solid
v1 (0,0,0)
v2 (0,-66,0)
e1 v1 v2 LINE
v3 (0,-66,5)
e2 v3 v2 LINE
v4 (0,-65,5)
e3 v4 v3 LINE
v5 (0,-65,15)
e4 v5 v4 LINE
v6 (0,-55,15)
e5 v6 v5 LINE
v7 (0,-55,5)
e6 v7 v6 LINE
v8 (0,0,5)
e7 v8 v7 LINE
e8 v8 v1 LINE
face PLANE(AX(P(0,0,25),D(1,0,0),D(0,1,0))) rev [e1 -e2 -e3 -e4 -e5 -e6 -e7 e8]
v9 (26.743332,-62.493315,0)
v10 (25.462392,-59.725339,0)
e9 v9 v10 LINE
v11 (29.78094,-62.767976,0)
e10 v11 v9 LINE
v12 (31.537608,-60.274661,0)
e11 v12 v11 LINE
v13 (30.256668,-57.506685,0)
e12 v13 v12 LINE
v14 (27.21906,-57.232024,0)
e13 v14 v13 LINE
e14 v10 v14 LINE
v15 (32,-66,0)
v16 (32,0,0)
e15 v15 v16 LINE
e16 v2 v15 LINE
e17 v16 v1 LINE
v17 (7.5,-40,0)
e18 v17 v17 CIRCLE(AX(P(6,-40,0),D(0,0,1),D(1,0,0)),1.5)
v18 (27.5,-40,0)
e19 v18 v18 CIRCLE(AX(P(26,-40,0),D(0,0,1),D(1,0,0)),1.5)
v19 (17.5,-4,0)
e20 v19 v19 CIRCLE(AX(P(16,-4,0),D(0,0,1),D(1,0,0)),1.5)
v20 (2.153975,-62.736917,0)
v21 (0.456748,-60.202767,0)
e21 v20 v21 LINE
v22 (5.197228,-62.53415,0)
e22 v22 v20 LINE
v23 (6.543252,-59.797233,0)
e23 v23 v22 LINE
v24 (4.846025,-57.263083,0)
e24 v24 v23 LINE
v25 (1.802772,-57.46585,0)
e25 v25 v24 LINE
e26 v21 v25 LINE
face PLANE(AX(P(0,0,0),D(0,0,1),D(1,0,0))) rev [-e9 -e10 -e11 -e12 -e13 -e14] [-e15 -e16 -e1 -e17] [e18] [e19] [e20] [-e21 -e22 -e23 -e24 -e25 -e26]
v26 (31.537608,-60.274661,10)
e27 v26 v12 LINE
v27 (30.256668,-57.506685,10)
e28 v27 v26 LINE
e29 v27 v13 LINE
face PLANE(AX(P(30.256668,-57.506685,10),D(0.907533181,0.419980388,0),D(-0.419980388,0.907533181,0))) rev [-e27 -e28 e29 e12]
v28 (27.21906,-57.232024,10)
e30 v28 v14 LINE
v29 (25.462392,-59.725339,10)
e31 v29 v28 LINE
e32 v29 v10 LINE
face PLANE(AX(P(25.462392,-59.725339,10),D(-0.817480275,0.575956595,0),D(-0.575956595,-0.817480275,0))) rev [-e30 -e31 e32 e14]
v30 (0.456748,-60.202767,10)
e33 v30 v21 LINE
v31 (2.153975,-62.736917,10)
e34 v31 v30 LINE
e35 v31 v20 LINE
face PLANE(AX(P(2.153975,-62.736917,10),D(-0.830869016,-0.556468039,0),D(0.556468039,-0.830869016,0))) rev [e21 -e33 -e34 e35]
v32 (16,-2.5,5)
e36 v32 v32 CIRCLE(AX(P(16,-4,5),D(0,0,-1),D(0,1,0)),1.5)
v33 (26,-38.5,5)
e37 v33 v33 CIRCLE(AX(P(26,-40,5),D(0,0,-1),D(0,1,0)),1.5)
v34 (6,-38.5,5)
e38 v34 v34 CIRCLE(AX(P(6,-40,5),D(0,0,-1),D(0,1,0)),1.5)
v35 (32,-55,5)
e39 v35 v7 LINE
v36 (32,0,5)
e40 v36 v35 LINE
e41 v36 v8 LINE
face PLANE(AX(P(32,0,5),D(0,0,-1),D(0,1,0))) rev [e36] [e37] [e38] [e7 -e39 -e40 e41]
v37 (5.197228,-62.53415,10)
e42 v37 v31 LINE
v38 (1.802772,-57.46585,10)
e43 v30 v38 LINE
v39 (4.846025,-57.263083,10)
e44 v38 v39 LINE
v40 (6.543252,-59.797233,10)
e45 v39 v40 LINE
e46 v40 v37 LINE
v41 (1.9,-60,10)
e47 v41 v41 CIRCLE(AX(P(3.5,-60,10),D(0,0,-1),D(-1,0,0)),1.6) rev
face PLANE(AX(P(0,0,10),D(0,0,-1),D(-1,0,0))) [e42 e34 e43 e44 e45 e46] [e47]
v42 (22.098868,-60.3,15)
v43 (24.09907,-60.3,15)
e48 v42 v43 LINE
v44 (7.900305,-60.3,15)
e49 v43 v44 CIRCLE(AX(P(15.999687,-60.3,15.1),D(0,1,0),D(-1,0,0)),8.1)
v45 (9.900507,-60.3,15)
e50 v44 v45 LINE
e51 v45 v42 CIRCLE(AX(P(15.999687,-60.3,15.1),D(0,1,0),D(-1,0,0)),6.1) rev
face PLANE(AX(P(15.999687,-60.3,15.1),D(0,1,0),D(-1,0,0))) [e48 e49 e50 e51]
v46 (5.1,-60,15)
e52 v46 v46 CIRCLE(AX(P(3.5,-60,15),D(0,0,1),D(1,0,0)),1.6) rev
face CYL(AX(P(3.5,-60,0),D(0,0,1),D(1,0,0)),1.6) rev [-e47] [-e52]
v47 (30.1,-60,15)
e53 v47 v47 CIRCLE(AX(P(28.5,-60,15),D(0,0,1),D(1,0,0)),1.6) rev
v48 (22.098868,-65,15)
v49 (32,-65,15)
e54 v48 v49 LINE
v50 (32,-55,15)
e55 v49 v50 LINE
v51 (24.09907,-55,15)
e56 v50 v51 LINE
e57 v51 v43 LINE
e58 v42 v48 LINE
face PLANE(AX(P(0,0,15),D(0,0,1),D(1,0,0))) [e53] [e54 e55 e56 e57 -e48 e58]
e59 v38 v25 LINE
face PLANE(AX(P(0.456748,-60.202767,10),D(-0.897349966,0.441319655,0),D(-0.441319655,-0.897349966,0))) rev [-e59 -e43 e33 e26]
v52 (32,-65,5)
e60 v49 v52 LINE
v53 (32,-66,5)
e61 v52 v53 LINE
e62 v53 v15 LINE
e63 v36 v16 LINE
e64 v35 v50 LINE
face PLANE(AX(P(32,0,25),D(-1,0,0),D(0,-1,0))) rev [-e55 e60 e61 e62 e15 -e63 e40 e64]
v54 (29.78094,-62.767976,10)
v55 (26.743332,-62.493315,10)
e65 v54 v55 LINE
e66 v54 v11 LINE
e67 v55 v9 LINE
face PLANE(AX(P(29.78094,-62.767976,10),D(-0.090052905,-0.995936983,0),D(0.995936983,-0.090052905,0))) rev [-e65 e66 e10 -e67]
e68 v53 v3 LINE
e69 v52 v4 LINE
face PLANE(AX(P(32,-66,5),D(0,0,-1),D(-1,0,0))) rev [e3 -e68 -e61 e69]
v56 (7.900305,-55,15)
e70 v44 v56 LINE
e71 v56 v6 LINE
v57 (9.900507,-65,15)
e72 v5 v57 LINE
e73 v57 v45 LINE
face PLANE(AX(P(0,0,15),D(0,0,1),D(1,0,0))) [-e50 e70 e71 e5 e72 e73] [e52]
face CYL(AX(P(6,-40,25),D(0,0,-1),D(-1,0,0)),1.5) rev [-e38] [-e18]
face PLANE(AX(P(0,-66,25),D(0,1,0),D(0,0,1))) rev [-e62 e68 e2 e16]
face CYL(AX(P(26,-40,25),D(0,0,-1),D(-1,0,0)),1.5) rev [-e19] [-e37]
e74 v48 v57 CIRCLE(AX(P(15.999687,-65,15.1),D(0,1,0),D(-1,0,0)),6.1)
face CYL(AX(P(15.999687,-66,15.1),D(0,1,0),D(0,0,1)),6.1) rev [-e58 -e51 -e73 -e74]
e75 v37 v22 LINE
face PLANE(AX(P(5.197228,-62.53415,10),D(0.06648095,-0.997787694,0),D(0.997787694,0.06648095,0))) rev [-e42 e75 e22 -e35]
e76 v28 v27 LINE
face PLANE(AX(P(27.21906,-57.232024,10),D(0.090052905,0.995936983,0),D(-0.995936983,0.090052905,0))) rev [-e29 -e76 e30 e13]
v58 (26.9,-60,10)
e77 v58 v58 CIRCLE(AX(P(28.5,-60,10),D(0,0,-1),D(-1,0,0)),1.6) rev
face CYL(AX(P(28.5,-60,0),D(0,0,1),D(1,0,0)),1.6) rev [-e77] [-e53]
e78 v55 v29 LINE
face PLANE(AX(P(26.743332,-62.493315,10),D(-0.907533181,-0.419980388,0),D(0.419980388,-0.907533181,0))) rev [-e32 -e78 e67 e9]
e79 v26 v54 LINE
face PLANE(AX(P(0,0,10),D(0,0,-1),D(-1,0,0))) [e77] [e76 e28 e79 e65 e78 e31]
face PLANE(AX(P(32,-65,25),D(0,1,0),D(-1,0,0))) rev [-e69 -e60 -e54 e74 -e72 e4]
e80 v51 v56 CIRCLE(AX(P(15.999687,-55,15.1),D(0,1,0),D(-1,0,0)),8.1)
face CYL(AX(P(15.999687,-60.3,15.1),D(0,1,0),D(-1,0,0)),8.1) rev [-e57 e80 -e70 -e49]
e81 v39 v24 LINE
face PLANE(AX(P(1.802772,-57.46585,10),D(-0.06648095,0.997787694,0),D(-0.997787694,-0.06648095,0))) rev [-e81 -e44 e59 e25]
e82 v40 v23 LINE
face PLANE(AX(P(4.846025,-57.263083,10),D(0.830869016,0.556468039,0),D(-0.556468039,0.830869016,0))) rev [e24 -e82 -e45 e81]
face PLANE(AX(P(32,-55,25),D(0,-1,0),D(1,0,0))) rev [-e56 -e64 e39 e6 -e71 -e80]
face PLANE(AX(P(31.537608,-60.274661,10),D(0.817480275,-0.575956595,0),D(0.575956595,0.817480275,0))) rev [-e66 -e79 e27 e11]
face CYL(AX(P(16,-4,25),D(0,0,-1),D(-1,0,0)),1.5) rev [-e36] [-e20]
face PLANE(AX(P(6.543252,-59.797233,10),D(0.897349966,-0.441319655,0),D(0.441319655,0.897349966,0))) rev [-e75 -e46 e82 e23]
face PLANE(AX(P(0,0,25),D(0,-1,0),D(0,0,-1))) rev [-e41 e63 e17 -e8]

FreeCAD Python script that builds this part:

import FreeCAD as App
import Part
import Sketcher
from FreeCAD import Vector

doc = App.newDocument("Part")
body = doc.addObject("PartDesign::Body", "Body")

# Sketch on XY plane
sketch1 = doc.addObject("Sketcher::SketchObject", "Sketch")
body.addObject(sketch1)
sketch1.AttachmentSupport = (doc.XY_Plane, [""])
sketch1.MapMode = "FlatFace"
sketch1.addGeometry([
    Part.LineSegment(Vector(0, 0, 0), Vector(0, -66, 0)),  # 0
    Part.LineSegment(Vector(0, -66, 0), Vector(32, -66, 0)),  # 1
    Part.LineSegment(Vector(32, -66, 0), Vector(32, 0, 0)),  # 2
    Part.LineSegment(Vector(32, 0, 0), Vector(0, 0, 0)),  # 3
    Part.Circle(Vector(6, -40, 0), Vector(0, 0, 1), 1.5),  # 4
    Part.Circle(Vector(26, -40, 0), Vector(0, 0, 1), 1.5),  # 5
    Part.Circle(Vector(16, -4, 0), Vector(0, 0, 1), 1.5),  # 6
], False)
sketch1.addConstraint([
    Sketcher.Constraint("Coincident", 0, 2, 1, 1),
    Sketcher.Constraint("Coincident", 1, 2, 2, 1),
    Sketcher.Constraint("Coincident", 2, 2, 3, 1),
    Sketcher.Constraint("Coincident", 3, 2, 0, 1),
    Sketcher.Constraint("Vertical", 0),
    Sketcher.Constraint("Horizontal", 1),
    Sketcher.Constraint("Vertical", 2),
    Sketcher.Constraint("Horizontal", 3),
    Sketcher.Constraint("Coincident", 3, 2, -1, 1),
    Sketcher.Constraint("Equal", 4, 5),
    Sketcher.Constraint("Equal", 5, 6),
    Sketcher.Constraint("Horizontal", 4, 3, 5, 3),
    Sketcher.Constraint("Diameter", 4, 3.0),
    Sketcher.Constraint("DistanceX", 1, 1, 1, 2, 32.0),
    Sketcher.Constraint("DistanceY", 0, 2, 0, 1, 66.0),
    Sketcher.Constraint("DistanceX", -1, 1, 4, 3, 6.0),
    Sketcher.Constraint("DistanceY", 4, 3, -1, 1, 40.0),
    Sketcher.Constraint("DistanceX", -1, 1, 5, 3, 26.0),
    Sketcher.Constraint("DistanceX", -1, 1, 6, 3, 16.0),
    Sketcher.Constraint("DistanceY", 6, 3, -1, 1, 4.0),
])
pad1 = doc.addObject("PartDesign::Pad", "Pad")
body.addObject(pad1)
pad1.Profile = sketch1
pad1.Length = 25

# Sketch on YZ plane
sketch2 = doc.addObject("Sketcher::SketchObject", "Sketch001")
body.addObject(sketch2)
sketch2.AttachmentSupport = (doc.YZ_Plane, [""])
sketch2.MapMode = "FlatFace"
sketch2.addGeometry([
    Part.LineSegment(Vector(0, 5, 0), Vector(-55, 5, 0)),  # 0
    Part.LineSegment(Vector(-55, 5, 0), Vector(-55, 25, 0)),  # 1
    Part.LineSegment(Vector(-55, 25, 0), Vector(0, 25, 0)),  # 2
    Part.LineSegment(Vector(0, 25, 0), Vector(0, 5, 0)),  # 3
    Part.LineSegment(Vector(-65, 5, 0), Vector(-66, 5, 0)),  # 4
    Part.LineSegment(Vector(-66, 5, 0), Vector(-66, 25, 0)),  # 5
    Part.LineSegment(Vector(-66, 25, 0), Vector(-65, 25, 0)),  # 6
    Part.LineSegment(Vector(-65, 25, 0), Vector(-65, 5, 0)),  # 7
], False)
sketch2.addConstraint([
    Sketcher.Constraint("Coincident", 0, 2, 1, 1),
    Sketcher.Constraint("Coincident", 1, 2, 2, 1),
    Sketcher.Constraint("Coincident", 2, 2, 3, 1),
    Sketcher.Constraint("Coincident", 3, 2, 0, 1),
    Sketcher.Constraint("Coincident", 4, 2, 5, 1),
    Sketcher.Constraint("Coincident", 5, 2, 6, 1),
    Sketcher.Constraint("Coincident", 6, 2, 7, 1),
    Sketcher.Constraint("Coincident", 7, 2, 4, 1),
    Sketcher.Constraint("Horizontal", 0),
    Sketcher.Constraint("Vertical", 1),
    Sketcher.Constraint("Horizontal", 2),
    Sketcher.Constraint("Vertical", 3),
    Sketcher.Constraint("Horizontal", 4),
    Sketcher.Constraint("Vertical", 5),
    Sketcher.Constraint("Horizontal", 6),
    Sketcher.Constraint("Vertical", 7),
    Sketcher.Constraint("PointOnObject", 2, 2, -2),
    Sketcher.Constraint("Horizontal", 3, 2, 4, 2),
    Sketcher.Constraint("Horizontal", 2, 2, 5, 2),
    Sketcher.Constraint("DistanceX", 0, 2, 0, 1, 55.0),
    Sketcher.Constraint("DistanceX", 4, 2, 4, 1, 1.0),
    Sketcher.Constraint("DistanceY", 1, 1, 1, 2, 20.0),
    Sketcher.Constraint("DistanceY", -1, 1, 0, 2, 5.0),
    Sketcher.Constraint("DistanceX", 4, 2, -1, 1, 66.0),
])
pocket1 = doc.addObject("PartDesign::Pocket", "Pocket")
body.addObject(pocket1)
pocket1.Profile = sketch2
pocket1.Type = "ThroughAll"
pocket1.Reversed = True

# Sketch on XZ plane
sketch3 = doc.addObject("Sketcher::SketchObject", "Sketch002")
body.addObject(sketch3)
sketch3.AttachmentSupport = (doc.XZ_Plane, [""])
sketch3.MapMode = "FlatFace"
sketch3.AttachmentOffset = App.Placement(Vector(0, 0, 55), App.Rotation())
sketch3.addGeometry(Part.Circle(Vector(15.999687, 15.1, 0), Vector(0, 0, 1), 6.1), False)
sketch3.addConstraint([
    Sketcher.Constraint("Diameter", 0, 12.2),
    Sketcher.Constraint("DistanceY", -1, 1, 0, 3, 15.1),
    Sketcher.Constraint("DistanceX", -1, 1, 0, 3, 15.999687),
])
pocket2 = doc.addObject("PartDesign::Pocket", "Pocket001")
body.addObject(pocket2)
pocket2.Profile = sketch3
pocket2.Type = "ThroughAll"
pocket2.Reversed = True

# Sketch on XZ plane
sketch4 = doc.addObject("Sketcher::SketchObject", "Sketch003")
body.addObject(sketch4)
sketch4.AttachmentSupport = (doc.XZ_Plane, [""])
sketch4.MapMode = "FlatFace"
sketch4.AttachmentOffset = App.Placement(Vector(0, 0, 55), App.Rotation())
sketch4.addGeometry(Part.Circle(Vector(15.999687, 15.1, 0), Vector(0, 0, 1), 8.1), False)
sketch4.addConstraint([
    Sketcher.Constraint("Diameter", 0, 16.2),
    Sketcher.Constraint("DistanceY", -1, 1, 0, 3, 15.1),
    Sketcher.Constraint("DistanceX", -1, 1, 0, 3, 15.999687),
])
pocket3 = doc.addObject("PartDesign::Pocket", "Pocket002")
body.addObject(pocket3)
pocket3.Profile = sketch4
pocket3.Length = 5.3
pocket3.Reversed = True

# Sketch on XY plane
sketch5 = doc.addObject("Sketcher::SketchObject", "Sketch004")
body.addObject(sketch5)
sketch5.AttachmentSupport = (doc.XY_Plane, [""])
sketch5.MapMode = "FlatFace"
sketch5.AttachmentOffset = App.Placement(Vector(0, 0, 25), App.Rotation())
sketch5.addGeometry([
    Part.Circle(Vector(3.5, -60, 0), Vector(0, 0, 1), 1.6),
    Part.Circle(Vector(28.5, -60, 0), Vector(0, 0, 1), 1.6),
], False)
sketch5.addConstraint([
    Sketcher.Constraint("Equal", 0, 1),
    Sketcher.Constraint("Horizontal", 0, 3, 1, 3),
    Sketcher.Constraint("Diameter", 0, 3.2),
    Sketcher.Constraint("DistanceY", 0, 3, -1, 1, 60.0),
    Sketcher.Constraint("DistanceX", 0, 3, 1, 3, 25.0),
    Sketcher.Constraint("DistanceX", -1, 1, 0, 3, 3.5),
])
pocket4 = doc.addObject("PartDesign::Pocket", "Pocket003")
body.addObject(pocket4)
pocket4.Profile = sketch5
pocket4.Type = "ThroughAll"

# Sketch on XY plane
sketch6 = doc.addObject("Sketcher::SketchObject", "Sketch005")
body.addObject(sketch6)
sketch6.AttachmentSupport = (doc.XY_Plane, [""])
sketch6.MapMode = "FlatFace"
sketch6.addGeometry([
    Part.LineSegment(Vector(27.21906, -57.232024, 0), Vector(30.256668, -57.506685, 0)),  # 0
    Part.LineSegment(Vector(30.256668, -57.506685, 0), Vector(31.537608, -60.274661, 0)),  # 1
    Part.LineSegment(Vector(31.537608, -60.274661, 0), Vector(29.78094, -62.767976, 0)),  # 2
    Part.LineSegment(Vector(29.78094, -62.767976, 0), Vector(26.743332, -62.493315, 0)),  # 3
    Part.LineSegment(Vector(26.743332, -62.493315, 0), Vector(25.462392, -59.725339, 0)),  # 4
    Part.LineSegment(Vector(25.462392, -59.725339, 0), Vector(27.21906, -57.232024, 0)),  # 5
    Part.LineSegment(Vector(4.846025, -57.263083, 0), Vector(6.543252, -59.797233, 0)),  # 6
    Part.LineSegment(Vector(6.543252, -59.797233, 0), Vector(5.197228, -62.53415, 0)),  # 7
    Part.LineSegment(Vector(5.197228, -62.53415, 0), Vector(2.153975, -62.736917, 0)),  # 8
    Part.LineSegment(Vector(2.153975, -62.736917, 0), Vector(0.456748, -60.202767, 0)),  # 9
    Part.LineSegment(Vector(0.456748, -60.202767, 0), Vector(1.802772, -57.46585, 0)),  # 10
    Part.LineSegment(Vector(1.802772, -57.46585, 0), Vector(4.846025, -57.263083, 0)),  # 11
], False)
sketch6.addConstraint([
    Sketcher.Constraint("Coincident", 0, 2, 1, 1),
    Sketcher.Constraint("Coincident", 1, 2, 2, 1),
    Sketcher.Constraint("Coincident", 2, 2, 3, 1),
    Sketcher.Constraint("Coincident", 3, 2, 4, 1),
    Sketcher.Constraint("Coincident", 4, 2, 5, 1),
    Sketcher.Constraint("Coincident", 5, 2, 0, 1),
    Sketcher.Constraint("Coincident", 6, 2, 7, 1),
    Sketcher.Constraint("Coincident", 7, 2, 8, 1),
    Sketcher.Constraint("Coincident", 8, 2, 9, 1),
    Sketcher.Constraint("Coincident", 9, 2, 10, 1),
    Sketcher.Constraint("Coincident", 10, 2, 11, 1),
    Sketcher.Constraint("Coincident", 11, 2, 6, 1),
    Sketcher.Constraint("Parallel", 0, 3),
    Sketcher.Constraint("Parallel", 1, 4),
    Sketcher.Constraint("Parallel", 2, 5),
    Sketcher.Constraint("Parallel", 6, 9),
    Sketcher.Constraint("Parallel", 7, 10),
    Sketcher.Constraint("Parallel", 8, 11),
    Sketcher.Constraint("Equal", 0, 1),
    Sketcher.Constraint("Equal", 1, 2),
    Sketcher.Constraint("Equal", 2, 3),
    Sketcher.Constraint("Equal", 5, 6),
    Sketcher.Constraint("Equal", 6, 7),
    Sketcher.Constraint("Equal", 7, 8),
    Sketcher.Constraint("Equal", 8, 9),
    Sketcher.Constraint("Distance", 0, 3.05),
    Sketcher.Constraint("DistanceY", 7, 2, 10, 2, 5.068301),
    Sketcher.Constraint("DistanceY", 1, 2, -1, 1, 60.274661),
    Sketcher.Constraint("DistanceX", -1, 1, 2, 2, 29.78094),
    Sketcher.Constraint("DistanceY", 4, 2, -1, 1, 59.725339),
    Sketcher.Constraint("DistanceX", -1, 1, 5, 2, 27.21906),
    Sketcher.Constraint("DistanceY", 7, 2, -1, 1, 62.53415),
    Sketcher.Constraint("DistanceX", 0, 2, 1, 2, 1.28094),
    Sketcher.Constraint("DistanceX", 6, 2, 4, 2, 18.91914),
    Sketcher.Constraint("DistanceY", 3, 2, 6, 2, 2.696082),
    Sketcher.Constraint("DistanceY", 8, 2, 4, 2, 3.011579),
])
pocket5 = doc.addObject("PartDesign::Pocket", "Pocket004")
body.addObject(pocket5)
pocket5.Profile = sketch6
pocket5.Length = 10
pocket5.Reversed = True

# Sketch on XY plane
sketch7 = doc.addObject("Sketcher::SketchObject", "Sketch006")
body.addObject(sketch7)
sketch7.AttachmentSupport = (doc.XY_Plane, [""])
sketch7.MapMode = "FlatFace"
sketch7.AttachmentOffset = App.Placement(Vector(0, 0, 25), App.Rotation())
sketch7.addGeometry([
    Part.LineSegment(Vector(0, -55, 0), Vector(0, -65, 0)),
    Part.LineSegment(Vector(0, -65, 0), Vector(32, -65, 0)),
    Part.LineSegment(Vector(32, -65, 0), Vector(32, -55, 0)),
    Part.LineSegment(Vector(32, -55, 0), Vector(0, -55, 0)),
], False)
sketch7.addConstraint([
    Sketcher.Constraint("Coincident", 0, 2, 1, 1),
    Sketcher.Constraint("Coincident", 1, 2, 2, 1),
    Sketcher.Constraint("Coincident", 2, 2, 3, 1),
    Sketcher.Constraint("Coincident", 3, 2, 0, 1),
    Sketcher.Constraint("Vertical", 0),
    Sketcher.Constraint("Horizontal", 1),
    Sketcher.Constraint("Vertical", 2),
    Sketcher.Constraint("Horizontal", 3),
    Sketcher.Constraint("PointOnObject", 0, 2, -2),
    Sketcher.Constraint("DistanceX", 1, 1, 1, 2, 32.0),
    Sketcher.Constraint("DistanceY", 0, 2, 0, 1, 10.0),
    Sketcher.Constraint("DistanceY", 0, 2, -1, 1, 65.0),
])
pocket6 = doc.addObject("PartDesign::Pocket", "Pocket005")
body.addObject(pocket6)
pocket6.Profile = sketch7
pocket6.Length = 10

doc.recompute()
